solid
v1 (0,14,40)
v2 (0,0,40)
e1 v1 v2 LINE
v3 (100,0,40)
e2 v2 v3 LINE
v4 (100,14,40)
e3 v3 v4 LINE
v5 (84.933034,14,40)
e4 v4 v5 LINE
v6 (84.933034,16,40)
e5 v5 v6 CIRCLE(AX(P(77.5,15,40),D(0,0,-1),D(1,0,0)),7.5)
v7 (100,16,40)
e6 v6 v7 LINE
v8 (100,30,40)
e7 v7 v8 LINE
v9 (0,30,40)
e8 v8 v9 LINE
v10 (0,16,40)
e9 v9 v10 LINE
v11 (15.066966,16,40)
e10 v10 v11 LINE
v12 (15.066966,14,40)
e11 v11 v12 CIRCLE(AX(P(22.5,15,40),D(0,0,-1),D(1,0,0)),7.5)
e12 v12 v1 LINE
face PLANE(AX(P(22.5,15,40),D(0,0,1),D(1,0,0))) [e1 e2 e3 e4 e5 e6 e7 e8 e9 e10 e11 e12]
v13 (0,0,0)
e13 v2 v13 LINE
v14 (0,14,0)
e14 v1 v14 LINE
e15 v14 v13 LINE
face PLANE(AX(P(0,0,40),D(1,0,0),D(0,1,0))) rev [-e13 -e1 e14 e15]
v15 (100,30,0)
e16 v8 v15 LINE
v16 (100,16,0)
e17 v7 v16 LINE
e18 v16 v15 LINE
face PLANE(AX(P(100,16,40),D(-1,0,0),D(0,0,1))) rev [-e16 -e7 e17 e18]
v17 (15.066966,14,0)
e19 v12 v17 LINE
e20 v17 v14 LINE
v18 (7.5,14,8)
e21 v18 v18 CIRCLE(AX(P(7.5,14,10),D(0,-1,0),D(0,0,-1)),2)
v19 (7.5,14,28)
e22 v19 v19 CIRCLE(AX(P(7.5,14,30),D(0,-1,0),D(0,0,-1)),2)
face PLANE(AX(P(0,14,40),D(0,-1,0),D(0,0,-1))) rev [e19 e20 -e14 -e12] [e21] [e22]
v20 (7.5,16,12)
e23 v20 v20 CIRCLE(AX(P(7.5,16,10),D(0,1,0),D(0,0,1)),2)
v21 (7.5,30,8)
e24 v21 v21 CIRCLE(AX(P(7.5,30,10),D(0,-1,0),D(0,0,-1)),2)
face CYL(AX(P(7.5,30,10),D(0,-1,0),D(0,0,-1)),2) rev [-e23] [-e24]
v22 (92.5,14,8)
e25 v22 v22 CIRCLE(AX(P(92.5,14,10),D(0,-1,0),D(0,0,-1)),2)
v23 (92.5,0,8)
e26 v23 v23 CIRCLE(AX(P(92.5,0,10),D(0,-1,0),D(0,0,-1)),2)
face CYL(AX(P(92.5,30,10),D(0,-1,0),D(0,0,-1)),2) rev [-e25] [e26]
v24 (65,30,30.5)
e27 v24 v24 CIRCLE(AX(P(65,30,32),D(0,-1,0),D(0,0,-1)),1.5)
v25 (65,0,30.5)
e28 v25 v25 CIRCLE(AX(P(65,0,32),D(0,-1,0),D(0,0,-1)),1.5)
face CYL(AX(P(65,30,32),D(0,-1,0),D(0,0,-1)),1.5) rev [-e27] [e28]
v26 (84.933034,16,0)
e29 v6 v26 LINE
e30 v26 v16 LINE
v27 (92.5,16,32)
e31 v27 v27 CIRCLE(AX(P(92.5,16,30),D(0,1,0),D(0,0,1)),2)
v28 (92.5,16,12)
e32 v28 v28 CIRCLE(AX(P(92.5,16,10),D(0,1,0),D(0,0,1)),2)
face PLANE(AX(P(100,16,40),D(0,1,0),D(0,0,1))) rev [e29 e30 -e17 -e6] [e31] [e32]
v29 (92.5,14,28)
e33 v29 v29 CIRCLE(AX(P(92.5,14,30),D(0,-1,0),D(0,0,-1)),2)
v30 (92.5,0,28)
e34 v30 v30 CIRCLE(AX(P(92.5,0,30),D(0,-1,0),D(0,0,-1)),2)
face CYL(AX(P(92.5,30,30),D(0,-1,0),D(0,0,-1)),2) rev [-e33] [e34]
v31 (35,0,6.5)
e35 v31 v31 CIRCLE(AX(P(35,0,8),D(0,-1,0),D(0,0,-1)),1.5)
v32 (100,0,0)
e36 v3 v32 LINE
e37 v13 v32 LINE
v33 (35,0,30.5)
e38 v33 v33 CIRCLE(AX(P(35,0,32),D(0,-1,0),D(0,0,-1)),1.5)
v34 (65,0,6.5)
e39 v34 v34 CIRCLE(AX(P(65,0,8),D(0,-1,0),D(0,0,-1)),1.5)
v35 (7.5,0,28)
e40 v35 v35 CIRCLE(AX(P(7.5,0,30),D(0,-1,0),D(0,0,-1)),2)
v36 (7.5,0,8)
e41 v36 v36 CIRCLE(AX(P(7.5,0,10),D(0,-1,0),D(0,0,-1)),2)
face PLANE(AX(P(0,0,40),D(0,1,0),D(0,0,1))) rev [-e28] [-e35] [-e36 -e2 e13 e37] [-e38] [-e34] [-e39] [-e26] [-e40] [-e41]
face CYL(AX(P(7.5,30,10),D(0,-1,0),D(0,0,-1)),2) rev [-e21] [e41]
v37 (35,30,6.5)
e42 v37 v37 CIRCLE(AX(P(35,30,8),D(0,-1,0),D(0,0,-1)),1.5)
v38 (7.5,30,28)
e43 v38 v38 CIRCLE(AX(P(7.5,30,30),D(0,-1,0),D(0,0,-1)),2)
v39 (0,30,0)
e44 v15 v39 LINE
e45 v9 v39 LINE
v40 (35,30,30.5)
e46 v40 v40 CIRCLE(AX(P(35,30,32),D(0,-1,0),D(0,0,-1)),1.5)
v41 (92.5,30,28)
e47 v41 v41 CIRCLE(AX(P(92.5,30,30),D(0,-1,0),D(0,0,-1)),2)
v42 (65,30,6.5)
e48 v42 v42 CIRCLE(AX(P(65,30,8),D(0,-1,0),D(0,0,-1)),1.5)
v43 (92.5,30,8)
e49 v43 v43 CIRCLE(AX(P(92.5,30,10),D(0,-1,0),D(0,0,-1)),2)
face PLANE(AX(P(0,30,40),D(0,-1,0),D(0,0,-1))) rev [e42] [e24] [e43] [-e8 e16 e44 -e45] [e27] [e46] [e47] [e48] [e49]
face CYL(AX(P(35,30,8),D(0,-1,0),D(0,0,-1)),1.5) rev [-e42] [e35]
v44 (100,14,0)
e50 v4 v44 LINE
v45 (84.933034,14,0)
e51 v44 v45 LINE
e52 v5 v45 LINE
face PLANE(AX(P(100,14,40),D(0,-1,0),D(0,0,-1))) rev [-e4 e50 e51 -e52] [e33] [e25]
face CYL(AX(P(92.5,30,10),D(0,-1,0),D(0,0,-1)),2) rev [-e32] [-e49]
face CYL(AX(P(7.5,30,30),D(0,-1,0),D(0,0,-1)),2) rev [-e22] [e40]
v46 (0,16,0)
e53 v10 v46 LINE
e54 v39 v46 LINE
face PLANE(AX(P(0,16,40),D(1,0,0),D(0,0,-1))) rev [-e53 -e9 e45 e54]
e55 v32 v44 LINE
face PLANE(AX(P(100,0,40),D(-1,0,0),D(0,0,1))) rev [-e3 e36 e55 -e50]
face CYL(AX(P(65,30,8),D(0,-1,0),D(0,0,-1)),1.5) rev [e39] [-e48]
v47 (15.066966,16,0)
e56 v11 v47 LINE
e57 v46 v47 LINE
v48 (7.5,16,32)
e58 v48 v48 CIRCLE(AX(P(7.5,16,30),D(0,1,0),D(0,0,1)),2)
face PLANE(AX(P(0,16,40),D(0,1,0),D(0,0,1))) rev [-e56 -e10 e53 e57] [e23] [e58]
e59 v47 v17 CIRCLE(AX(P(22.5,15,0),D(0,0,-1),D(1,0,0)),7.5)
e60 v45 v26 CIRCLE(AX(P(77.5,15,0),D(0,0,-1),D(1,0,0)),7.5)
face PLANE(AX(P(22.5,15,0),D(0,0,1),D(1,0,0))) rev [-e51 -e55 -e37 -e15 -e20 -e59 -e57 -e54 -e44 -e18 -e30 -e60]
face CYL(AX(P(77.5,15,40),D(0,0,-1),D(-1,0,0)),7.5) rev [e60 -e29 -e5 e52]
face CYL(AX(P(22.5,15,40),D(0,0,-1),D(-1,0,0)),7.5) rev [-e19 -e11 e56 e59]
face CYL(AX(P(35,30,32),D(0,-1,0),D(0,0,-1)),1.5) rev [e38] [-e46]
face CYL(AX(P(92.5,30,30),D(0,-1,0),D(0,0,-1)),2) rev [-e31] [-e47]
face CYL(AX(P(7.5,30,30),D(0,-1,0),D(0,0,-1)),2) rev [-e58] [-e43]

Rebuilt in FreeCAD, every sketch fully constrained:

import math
import FreeCAD as App
import Part
import Sketcher
Q = App.Units.Quantity

doc = App.newDocument("Part")
body = doc.addObject("PartDesign::Body", "Body")

# Sketch on XY plane
sketch1 = doc.addObject("Sketcher::SketchObject", "Sketch")
body.addObject(sketch1)
sketch1.AttachmentSupport = (doc.XY_Plane, [""])
sketch1.MapMode = "FlatFace"
sketch1.addGeometry(Part.LineSegment(App.Vector(0, 0, 0), App.Vector(100, 0, 0)), False)
sketch1.addGeometry(Part.LineSegment(App.Vector(100, 0, 0), App.Vector(100, 14, 0)), False)
sketch1.addGeometry(Part.LineSegment(App.Vector(100, 14, 0), App.Vector(84.9, 14, 0)), False)
sketch1.addGeometry(Part.ArcOfCircle(Part.Circle(App.Vector(77.5, 15, 0), App.Vector(0, 0, 1), 7.5), math.radians(8), math.radians(352)), False)
sketch1.addGeometry(Part.LineSegment(App.Vector(84.9, 16, 0), App.Vector(100, 16, 0)), False)
sketch1.addGeometry(Part.LineSegment(App.Vector(100, 16, 0), App.Vector(100, 30, 0)), False)
sketch1.addGeometry(Part.LineSegment(App.Vector(100, 30, 0), App.Vector(0, 30, 0)), False)
sketch1.addGeometry(Part.LineSegment(App.Vector(0, 30, 0), App.Vector(0, 16, 0)), False)
sketch1.addGeometry(Part.LineSegment(App.Vector(0, 16, 0), App.Vector(15.1, 16, 0)), False)
sketch1.addGeometry(Part.ArcOfCircle(Part.Circle(App.Vector(22.5, 15, 0), App.Vector(0, 0, 1), 7.5), math.radians(-172), math.radians(172)), False)
sketch1.addGeometry(Part.LineSegment(App.Vector(15.1, 14, 0), App.Vector(0, 14, 0)), False)
sketch1.addGeometry(Part.LineSegment(App.Vector(0, 14, 0), App.Vector(0, 0, 0)), False)
sketch1.addConstraint(Sketcher.Constraint("Coincident", 0, 2, 1, 1))
sketch1.addConstraint(Sketcher.Constraint("Coincident", 1, 2, 2, 1))
sketch1.addConstraint(Sketcher.Constraint("Coincident", 2, 2, 3, 2))
sketch1.addConstraint(Sketcher.Constraint("Coincident", 3, 1, 4, 1))
sketch1.addConstraint(Sketcher.Constraint("Coincident", 4, 2, 5, 1))
sketch1.addConstraint(Sketcher.Constraint("Coincident", 5, 2, 6, 1))
sketch1.addConstraint(Sketcher.Constraint("Coincident", 6, 2, 7, 1))
sketch1.addConstraint(Sketcher.Constraint("Coincident", 7, 2, 8, 1))
sketch1.addConstraint(Sketcher.Constraint("Coincident", 8, 2, 9, 2))
sketch1.addConstraint(Sketcher.Constraint("Coincident", 9, 1, 10, 1))
sketch1.addConstraint(Sketcher.Constraint("Coincident", 10, 2, 11, 1))
sketch1.addConstraint(Sketcher.Constraint("Coincident", 11, 2, 0, 1))
sketch1.addConstraint(Sketcher.Constraint("Horizontal", 0))
sketch1.addConstraint(Sketcher.Constraint("Vertical", 1))
sketch1.addConstraint(Sketcher.Constraint("Horizontal", 2))
sketch1.addConstraint(Sketcher.Constraint("Horizontal", 4))
sketch1.addConstraint(Sketcher.Constraint("Vertical", 5))
sketch1.addConstraint(Sketcher.Constraint("Horizontal", 6))
sketch1.addConstraint(Sketcher.Constraint("Vertical", 7))
sketch1.addConstraint(Sketcher.Constraint("Horizontal", 8))
sketch1.addConstraint(Sketcher.Constraint("Horizontal", 10))
sketch1.addConstraint(Sketcher.Constraint("Vertical", 11))
sketch1.addConstraint(Sketcher.Constraint("Coincident", 11, 2, -1, 1))
sketch1.addConstraint(Sketcher.Constraint("Equal", 3, 9))
sketch1.addConstraint(Sketcher.Constraint("PointOnObject", 6, 2, -2))
sketch1.addConstraint(Sketcher.Constraint("Horizontal", 3, 3, 9, 3))
sketch1.addConstraint(Sketcher.Constraint("Horizontal", 4, 2, 7, 2))
sketch1.addConstraint(Sketcher.Constraint("Horizontal", 2, 2, 9, 1))
sketch1.addConstraint(Sketcher.Constraint("Vertical", 2, 2, 3, 1))
sketch1.addConstraint(Sketcher.Constraint("Vertical", 1, 2, 4, 2))
sketch1.addConstraint(Sketcher.Constraint("Equal", 4, 8))
sketch1.addConstraint(Sketcher.Constraint("Equal", 1, 5))
sketch1.addConstraint(Sketcher.Constraint("Radius", 3, Q("7.5 mm")))
sketch1.addConstraint(Sketcher.Constraint("DistanceX", 0, 1, 0, 2, Q("100 mm")))
sketch1.addConstraint(Sketcher.Constraint("DistanceY", 1, 1, 1, 2, Q("14 mm")))
sketch1.addConstraint(Sketcher.Constraint("DistanceY", -1, 1, 3, 3, Q("15 mm")))
sketch1.addConstraint(Sketcher.Constraint("DistanceX", 9, 3, 3, 3, Q("55 mm")))
pad1 = doc.addObject("PartDesign::Pad", "Pad")
body.addObject(pad1)
pad1.Profile = sketch1
pad1.Length = 40

# Sketch on XZ plane
sketch2 = doc.addObject("Sketcher::SketchObject", "Sketch001")
body.addObject(sketch2)
sketch2.AttachmentSupport = (doc.XZ_Plane, [""])
sketch2.MapMode = "FlatFace"
sketch2.addGeometry(Part.Circle(App.Vector(7.5, 30, 0), App.Vector(0, 0, 1), 2), False)
sketch2.addGeometry(Part.Circle(App.Vector(7.5, 10, 0), App.Vector(0, 0, 1), 2), False)
sketch2.addGeometry(Part.Circle(App.Vector(92.5, 30, 0), App.Vector(0, 0, 1), 2), False)
sketch2.addGeometry(Part.Circle(App.Vector(92.5, 10, 0), App.Vector(0, 0, 1), 2), False)
sketch2.addGeometry(Part.Circle(App.Vector(35, 32, 0), App.Vector(0, 0, 1), 1.5), False)
sketch2.addGeometry(Part.Circle(App.Vector(65, 32, 0), App.Vector(0, 0, 1), 1.5), False)
sketch2.addGeometry(Part.Circle(App.Vector(35, 8, 0), App.Vector(0, 0, 1), 1.5), False)
sketch2.addGeometry(Part.Circle(App.Vector(65, 8, 0), App.Vector(0, 0, 1), 1.5), False)
sketch2.addConstraint(Sketcher.Constraint("Equal", 0, 1))
sketch2.addConstraint(Sketcher.Constraint("Equal", 1, 2))
sketch2.addConstraint(Sketcher.Constraint("Equal", 2, 3))
sketch2.addConstraint(Sketcher.Constraint("Equal", 4, 5))
sketch2.addConstraint(Sketcher.Constraint("Equal", 5, 6))
sketch2.addConstraint(Sketcher.Constraint("Equal", 6, 7))
sketch2.addConstraint(Sketcher.Constraint("Horizontal", 0, 3, 2, 3))
sketch2.addConstraint(Sketcher.Constraint("Horizontal", 1, 3, 3, 3))
sketch2.addConstraint(Sketcher.Constraint("Horizontal", 4, 3, 5, 3))
sketch2.addConstraint(Sketcher.Constraint("Horizontal", 6, 3, 7, 3))
sketch2.addConstraint(Sketcher.Constraint("Vertical", 0, 3, 1, 3))
sketch2.addConstraint(Sketcher.Constraint("Vertical", 2, 3, 3, 3))
sketch2.addConstraint(Sketcher.Constraint("Vertical", 4, 3, 6, 3))
sketch2.addConstraint(Sketcher.Constraint("Vertical", 5, 3, 7, 3))
sketch2.addConstraint(Sketcher.Constraint("Diameter", 0, Q("4 mm")))
sketch2.addConstraint(Sketcher.Constraint("Diameter", 4, Q("3 mm")))
sketch2.addConstraint(Sketcher.Constraint("DistanceY", -1, 1, 0, 3, Q("30 mm")))
sketch2.addConstraint(Sketcher.Constraint("DistanceY", -1, 1, 1, 3, Q("10 mm")))
sketch2.addConstraint(Sketcher.Constraint("DistanceX", -1, 1, 4, 3, Q("35 mm")))
sketch2.addConstraint(Sketcher.Constraint("DistanceY", -1, 1, 4, 3, Q("32 mm")))
sketch2.addConstraint(Sketcher.Constraint("DistanceX", -1, 1, 5, 3, Q("65 mm")))
sketch2.addConstraint(Sketcher.Constraint("DistanceY", -1, 1, 6, 3, Q("8 mm")))
sketch2.addConstraint(Sketcher.Constraint("DistanceX", 0, 3, 2, 3, Q("85 mm")))
sketch2.addConstraint(Sketcher.Constraint("DistanceX", -1, 1, 0, 3, Q("7.5 mm")))
pocket1 = doc.addObject("PartDesign::Pocket", "Pocket")
body.addObject(pocket1)
pocket1.Profile = sketch2
pocket1.Type = "ThroughAll"

doc.recompute()
